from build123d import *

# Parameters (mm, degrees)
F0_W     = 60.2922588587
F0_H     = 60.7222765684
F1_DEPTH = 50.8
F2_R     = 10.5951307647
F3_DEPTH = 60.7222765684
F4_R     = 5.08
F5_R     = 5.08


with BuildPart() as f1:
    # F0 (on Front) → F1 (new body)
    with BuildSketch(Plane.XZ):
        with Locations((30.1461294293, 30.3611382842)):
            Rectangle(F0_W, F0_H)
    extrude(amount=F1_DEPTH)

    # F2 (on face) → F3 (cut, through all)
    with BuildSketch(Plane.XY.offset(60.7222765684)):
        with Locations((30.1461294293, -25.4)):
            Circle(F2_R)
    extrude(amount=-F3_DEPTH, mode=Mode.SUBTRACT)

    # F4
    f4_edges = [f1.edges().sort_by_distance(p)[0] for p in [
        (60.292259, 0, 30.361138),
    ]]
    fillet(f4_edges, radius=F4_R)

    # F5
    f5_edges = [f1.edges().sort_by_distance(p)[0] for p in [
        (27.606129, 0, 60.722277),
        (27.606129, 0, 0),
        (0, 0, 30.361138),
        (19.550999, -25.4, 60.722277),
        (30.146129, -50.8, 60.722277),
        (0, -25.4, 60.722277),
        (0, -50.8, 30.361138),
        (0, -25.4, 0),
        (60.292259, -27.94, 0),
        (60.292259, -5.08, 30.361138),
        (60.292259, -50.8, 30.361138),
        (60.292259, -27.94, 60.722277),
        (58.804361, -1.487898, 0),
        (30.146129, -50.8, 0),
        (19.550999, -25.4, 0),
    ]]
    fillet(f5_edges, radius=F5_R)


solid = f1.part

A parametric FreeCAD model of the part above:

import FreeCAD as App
import Part
import Sketcher
from FreeCAD import Vector
Q = App.Units.Quantity


def edges_at(feature, points):
    """Names of the edges that pass closest to the given points."""
    edges = feature.Shape.Edges
    near = lambda p: min(range(len(edges)), key=lambda i: edges[i].distToShape(Part.Vertex(*p))[0])
    return sorted({f"Edge{near(p) + 1}" for p in points})


def add_polygon(sketch, points):
    """Adds a closed chain of lines whose ends are joined by coincident constraints."""
    first, n = sketch.GeometryCount, len(points)
    for a, b in zip(points, points[1:] + points[:1]):
        sketch.addGeometry(Part.LineSegment(App.Vector(*a, 0), App.Vector(*b, 0)), False)
    for i in range(n):
        sketch.addConstraint(Sketcher.Constraint("Coincident", first + i, 2, first + (i + 1) % n, 1))

doc = App.newDocument("Part")
params = doc.addObject("Spreadsheet::Sheet", "Params")
for row, (alias, value) in enumerate([
    ("pad1_length", "2 in"),
    ("fillet_radius", "0.2 in"),
    ("fillet2_radius", "0.2 in"),
], start=1):
    params.set(f"A{row}", alias)
    params.set(f"B{row}", "=" + value)
    params.setAlias(f"B{row}", alias)

body = doc.addObject("PartDesign::Body", "Body")

# Sketch on XZ plane
sketch1 = body.newObject("Sketcher::SketchObject", "Sketch")
sketch1.AttachmentSupport = (doc.getObject("XZ_Plane"), [""])
sketch1.MapMode = "FlatFace"
add_polygon(sketch1, [(0, 61), (0, 0), (60, 0), (60, 61)])  # lines 0-3
sketch1.addConstraint(Sketcher.Constraint("Vertical", 0))
sketch1.addConstraint(Sketcher.Constraint("Horizontal", 1))
sketch1.addConstraint(Sketcher.Constraint("Vertical", 2))
sketch1.addConstraint(Sketcher.Constraint("Horizontal", 3))
sketch1.addConstraint(Sketcher.Constraint("Coincident", 0, 2, -1, 1))
sketch1.addConstraint(Sketcher.Constraint("DistanceX", 1, 1, 1, 2, 60.292259))
sketch1.addConstraint(Sketcher.Constraint("DistanceY", 0, 2, 0, 1, 60.722277))
pad1 = body.newObject("PartDesign::Pad", "Pad")
pad1.Profile = sketch1
pad1.setExpression("Length", "Params.pad1_length")

# Sketch on XY plane
sketch2 = body.newObject("Sketcher::SketchObject", "Sketch001")
sketch2.AttachmentSupport = (doc.getObject("XY_Plane"), [""])
sketch2.MapMode = "FlatFace"
sketch2.AttachmentOffset = App.Placement(Vector(0, 0, 60.722277), App.Rotation())
sketch2.addGeometry(Part.Circle(Vector(30, -25, 0), Vector(0, 0, 1), 11), False)
sketch2.addConstraint(Sketcher.Constraint("DistanceY", 0, 3, -1, 1, Q("1 in")))
sketch2.addConstraint(Sketcher.Constraint("Diameter", 0, 21.190262))
sketch2.addConstraint(Sketcher.Constraint("DistanceX", -1, 1, 0, 3, 30.146129))
pocket1 = body.newObject("PartDesign::Pocket", "Pocket")
pocket1.Profile = sketch2
pocket1.Type = "ThroughAll"
doc.recompute()

fillet = body.newObject("PartDesign::Fillet", "Fillet")
fillet.Base = (pocket1, edges_at(pocket1, [(60.292, 0, 30.361)]))
fillet.setExpression("Radius", "Params.fillet_radius")
doc.recompute()

fillet2 = body.newObject("PartDesign::Fillet", "Fillet001")
fillet2.Base = (fillet, ["Edge1"])
fillet2.UseAllEdges = True
fillet2.setExpression("Radius", "Params.fillet2_radius")

doc.recompute()
